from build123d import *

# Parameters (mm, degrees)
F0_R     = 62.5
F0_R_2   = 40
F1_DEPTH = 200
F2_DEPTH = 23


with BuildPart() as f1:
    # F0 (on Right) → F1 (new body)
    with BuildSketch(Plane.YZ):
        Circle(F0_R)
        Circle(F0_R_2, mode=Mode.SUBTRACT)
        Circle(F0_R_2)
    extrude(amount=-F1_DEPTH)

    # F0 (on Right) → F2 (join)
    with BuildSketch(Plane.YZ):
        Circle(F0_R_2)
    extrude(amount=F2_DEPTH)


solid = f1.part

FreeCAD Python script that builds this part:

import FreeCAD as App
import Part
import Sketcher
Q = App.Units.Quantity

doc = App.newDocument("Part")
body = doc.addObject("PartDesign::Body", "Body")

# Sketch on YZ plane
sketch1 = body.newObject("Sketcher::SketchObject", "Sketch")
sketch1.AttachmentSupport = (doc.getObject("YZ_Plane"), [""])
sketch1.MapMode = "FlatFace"
sketch1.addGeometry(Part.Circle(App.Vector(0, 0, 0), App.Vector(0, 0, 1), 62), False)
sketch1.addConstraint([
    Sketcher.Constraint("Coincident", 0, 3, -1, 1),
    Sketcher.Constraint("Diameter", 0, Q("125 mm")),
])
pad1 = body.newObject("PartDesign::Pad", "Pad")
pad1.Profile = sketch1
pad1.Length = 200
pad1.Reversed = True

# Sketch on YZ plane
sketch2 = body.newObject("Sketcher::SketchObject", "Sketch001")
sketch2.AttachmentSupport = (doc.getObject("YZ_Plane"), [""])
sketch2.MapMode = "FlatFace"
sketch2.addGeometry(Part.Circle(App.Vector(0, 0, 0), App.Vector(0, 0, 1), 40), False)
sketch2.addConstraint([
    Sketcher.Constraint("Coincident", 0, 3, -1, 1),
    Sketcher.Constraint("Diameter", 0, Q("80 mm")),
])
pad2 = body.newObject("PartDesign::Pad", "Pad001")
pad2.Profile = sketch2
pad2.Length = 23

doc.recompute()
